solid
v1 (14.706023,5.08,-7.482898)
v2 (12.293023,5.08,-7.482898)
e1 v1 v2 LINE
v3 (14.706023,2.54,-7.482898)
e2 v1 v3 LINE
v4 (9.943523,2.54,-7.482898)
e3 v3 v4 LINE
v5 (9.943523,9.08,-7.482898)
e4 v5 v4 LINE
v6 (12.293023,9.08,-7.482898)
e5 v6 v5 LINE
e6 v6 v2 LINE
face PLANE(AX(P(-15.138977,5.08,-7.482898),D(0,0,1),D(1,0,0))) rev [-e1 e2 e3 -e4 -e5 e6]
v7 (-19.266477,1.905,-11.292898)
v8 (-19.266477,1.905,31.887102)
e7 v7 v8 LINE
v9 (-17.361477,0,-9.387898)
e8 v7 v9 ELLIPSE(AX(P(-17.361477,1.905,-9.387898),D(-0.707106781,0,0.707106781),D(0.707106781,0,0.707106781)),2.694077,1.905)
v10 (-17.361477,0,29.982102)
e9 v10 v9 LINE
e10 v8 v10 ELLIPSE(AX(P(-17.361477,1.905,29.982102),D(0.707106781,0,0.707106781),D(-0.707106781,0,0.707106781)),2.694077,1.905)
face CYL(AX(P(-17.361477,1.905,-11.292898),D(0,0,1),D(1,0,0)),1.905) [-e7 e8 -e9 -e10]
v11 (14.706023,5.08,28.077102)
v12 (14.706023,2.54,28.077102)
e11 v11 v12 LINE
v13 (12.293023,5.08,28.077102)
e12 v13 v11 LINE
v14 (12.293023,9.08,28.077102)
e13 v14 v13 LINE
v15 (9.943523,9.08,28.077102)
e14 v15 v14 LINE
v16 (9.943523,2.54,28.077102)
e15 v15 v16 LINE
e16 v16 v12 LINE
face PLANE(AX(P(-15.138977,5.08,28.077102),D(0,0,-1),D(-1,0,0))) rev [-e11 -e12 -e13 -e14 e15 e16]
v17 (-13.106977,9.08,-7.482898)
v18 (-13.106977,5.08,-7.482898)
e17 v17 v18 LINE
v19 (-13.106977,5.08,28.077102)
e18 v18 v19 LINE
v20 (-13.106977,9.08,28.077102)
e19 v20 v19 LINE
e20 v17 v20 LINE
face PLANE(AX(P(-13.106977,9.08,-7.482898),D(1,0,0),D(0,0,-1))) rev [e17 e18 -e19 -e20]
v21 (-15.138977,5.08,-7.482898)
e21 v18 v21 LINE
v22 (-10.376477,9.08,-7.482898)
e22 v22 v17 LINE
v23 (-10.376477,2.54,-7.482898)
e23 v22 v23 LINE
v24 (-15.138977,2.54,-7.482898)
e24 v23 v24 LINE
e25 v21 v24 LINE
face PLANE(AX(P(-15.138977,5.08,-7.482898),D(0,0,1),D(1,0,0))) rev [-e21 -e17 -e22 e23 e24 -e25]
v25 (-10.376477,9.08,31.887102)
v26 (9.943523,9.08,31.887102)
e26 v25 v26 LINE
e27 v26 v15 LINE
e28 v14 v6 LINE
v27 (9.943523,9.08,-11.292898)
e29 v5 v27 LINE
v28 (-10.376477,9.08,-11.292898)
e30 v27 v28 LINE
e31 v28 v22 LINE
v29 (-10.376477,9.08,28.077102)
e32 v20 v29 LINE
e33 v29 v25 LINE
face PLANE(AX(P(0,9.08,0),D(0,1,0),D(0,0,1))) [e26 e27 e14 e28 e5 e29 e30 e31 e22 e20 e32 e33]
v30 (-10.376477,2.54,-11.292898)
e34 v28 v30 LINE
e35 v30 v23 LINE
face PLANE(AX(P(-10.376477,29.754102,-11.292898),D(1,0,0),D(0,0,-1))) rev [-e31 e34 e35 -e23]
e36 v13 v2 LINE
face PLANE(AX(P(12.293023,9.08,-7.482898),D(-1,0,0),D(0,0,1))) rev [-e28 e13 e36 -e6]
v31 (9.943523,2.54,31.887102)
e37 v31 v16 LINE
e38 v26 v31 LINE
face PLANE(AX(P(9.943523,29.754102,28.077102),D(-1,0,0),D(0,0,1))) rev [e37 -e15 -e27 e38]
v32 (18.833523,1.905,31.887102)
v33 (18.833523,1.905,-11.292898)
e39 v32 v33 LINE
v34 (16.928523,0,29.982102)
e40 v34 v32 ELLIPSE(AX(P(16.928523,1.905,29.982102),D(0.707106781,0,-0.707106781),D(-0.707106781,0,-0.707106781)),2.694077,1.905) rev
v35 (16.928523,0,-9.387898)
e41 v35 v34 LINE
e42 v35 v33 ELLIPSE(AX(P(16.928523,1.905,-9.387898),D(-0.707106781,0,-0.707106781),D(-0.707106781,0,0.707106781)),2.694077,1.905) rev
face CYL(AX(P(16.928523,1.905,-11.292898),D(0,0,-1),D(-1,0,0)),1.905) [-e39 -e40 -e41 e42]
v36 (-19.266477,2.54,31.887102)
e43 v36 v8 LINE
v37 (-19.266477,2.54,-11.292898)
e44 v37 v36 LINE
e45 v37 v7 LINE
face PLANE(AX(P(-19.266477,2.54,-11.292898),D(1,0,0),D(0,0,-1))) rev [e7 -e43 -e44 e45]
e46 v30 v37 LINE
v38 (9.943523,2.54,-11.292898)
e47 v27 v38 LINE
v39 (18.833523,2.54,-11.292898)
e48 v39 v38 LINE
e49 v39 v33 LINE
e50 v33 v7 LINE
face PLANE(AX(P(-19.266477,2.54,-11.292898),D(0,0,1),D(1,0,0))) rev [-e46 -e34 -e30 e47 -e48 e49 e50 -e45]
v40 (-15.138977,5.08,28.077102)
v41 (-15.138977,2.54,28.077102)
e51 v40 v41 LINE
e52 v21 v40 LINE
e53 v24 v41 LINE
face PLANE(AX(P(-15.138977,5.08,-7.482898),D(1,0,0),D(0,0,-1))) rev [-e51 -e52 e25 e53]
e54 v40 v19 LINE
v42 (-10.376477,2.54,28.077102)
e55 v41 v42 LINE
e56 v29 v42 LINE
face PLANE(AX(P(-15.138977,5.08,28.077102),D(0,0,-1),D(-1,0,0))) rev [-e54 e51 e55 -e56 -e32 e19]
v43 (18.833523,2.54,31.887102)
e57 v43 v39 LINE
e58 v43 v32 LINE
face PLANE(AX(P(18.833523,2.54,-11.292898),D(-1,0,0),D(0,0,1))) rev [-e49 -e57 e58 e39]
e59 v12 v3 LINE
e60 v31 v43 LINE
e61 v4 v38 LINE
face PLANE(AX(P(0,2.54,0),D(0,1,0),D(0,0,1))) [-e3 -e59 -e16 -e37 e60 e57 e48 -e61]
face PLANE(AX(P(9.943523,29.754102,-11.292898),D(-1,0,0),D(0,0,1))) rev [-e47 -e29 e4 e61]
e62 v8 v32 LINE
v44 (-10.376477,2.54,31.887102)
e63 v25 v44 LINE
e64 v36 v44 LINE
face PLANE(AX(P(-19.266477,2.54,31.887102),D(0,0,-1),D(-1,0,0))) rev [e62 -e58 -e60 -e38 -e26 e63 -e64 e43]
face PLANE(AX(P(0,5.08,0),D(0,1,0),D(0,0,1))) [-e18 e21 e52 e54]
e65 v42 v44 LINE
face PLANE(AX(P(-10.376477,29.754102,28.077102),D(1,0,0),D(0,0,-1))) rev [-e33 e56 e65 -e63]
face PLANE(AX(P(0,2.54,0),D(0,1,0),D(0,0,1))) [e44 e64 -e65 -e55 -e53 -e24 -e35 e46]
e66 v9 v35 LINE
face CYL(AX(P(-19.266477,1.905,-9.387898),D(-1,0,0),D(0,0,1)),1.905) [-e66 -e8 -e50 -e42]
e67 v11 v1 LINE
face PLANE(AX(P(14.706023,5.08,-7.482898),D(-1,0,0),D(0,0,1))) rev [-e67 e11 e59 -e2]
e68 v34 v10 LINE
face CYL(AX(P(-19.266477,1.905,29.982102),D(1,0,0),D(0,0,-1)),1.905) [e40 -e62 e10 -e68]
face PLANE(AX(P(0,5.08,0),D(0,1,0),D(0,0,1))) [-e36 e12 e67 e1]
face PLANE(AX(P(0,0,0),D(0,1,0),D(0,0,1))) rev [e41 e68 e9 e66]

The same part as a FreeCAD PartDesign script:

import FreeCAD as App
import Part
import Sketcher
Q = App.Units.Quantity


def edges_at(feature, points):
    """Names of the edges that pass closest to the given points."""
    edges = feature.Shape.Edges
    near = lambda p: min(range(len(edges)), key=lambda i: edges[i].distToShape(Part.Vertex(*p))[0])
    return sorted({f"Edge{near(p) + 1}" for p in points})


def add_polygon(sketch, points):
    """Adds a closed chain of lines whose ends are joined by coincident constraints."""
    first, n = sketch.GeometryCount, len(points)
    for a, b in zip(points, points[1:] + points[:1]):
        sketch.addGeometry(Part.LineSegment(App.Vector(*a, 0), App.Vector(*b, 0)), False)
    for i in range(n):
        sketch.addConstraint(Sketcher.Constraint("Coincident", first + i, 2, first + (i + 1) % n, 1))

doc = App.newDocument("Part")
body = doc.addObject("PartDesign::Body", "Body")

# Sketch on XZ plane
sketch1 = doc.addObject("Sketcher::SketchObject", "Sketch")
body.addObject(sketch1)
sketch1.AttachmentSupport = (doc.XZ_Plane, [""])
sketch1.MapMode = "FlatFace"
add_polygon(sketch1, [(-19.266477, -11.292898), (-19.266477, 31.887102), (18.833523, 31.887102), (18.833523, -11.292898)])  # lines 0-3
sketch1.addConstraint([
    Sketcher.Constraint("Vertical", 0),
    Sketcher.Constraint("Horizontal", 1),
    Sketcher.Constraint("Vertical", 2),
    Sketcher.Constraint("Horizontal", 3),
    Sketcher.Constraint("DistanceX", 1, 1, 1, 2, Q("1.5 in")),
    Sketcher.Constraint("DistanceY", 0, 1, 0, 2, Q("1.7 in")),
    Sketcher.Constraint("DistanceX", 0, 2, -1, 1, 19.266477),
    Sketcher.Constraint("DistanceY", -1, 1, 0, 2, 31.887102),
])
pad1 = doc.addObject("PartDesign::Pad", "Pad")
body.addObject(pad1)
pad1.Profile = sketch1
pad1.Length = Q("0.1 in")
pad1.Reversed = True

# Sketch on XZ plane
sketch2 = doc.addObject("Sketcher::SketchObject", "Sketch001")
body.addObject(sketch2)
sketch2.AttachmentSupport = (doc.XZ_Plane, [""])
sketch2.MapMode = "FlatFace"
sketch2.AttachmentOffset = App.Placement(App.Vector(0, 0, -0.1 * 25.4), App.Rotation())
add_polygon(sketch2, [(-15.138977, -7.482898), (-15.138977, 28.077102), (14.706023, 28.077102), (14.706023, -7.482898)])  # lines 0-3
sketch2.addConstraint([
    Sketcher.Constraint("Vertical", 0),
    Sketcher.Constraint("Horizontal", 1),
    Sketcher.Constraint("Vertical", 2),
    Sketcher.Constraint("Horizontal", 3),
    Sketcher.Constraint("DistanceY", 0, 1, 0, 2, Q("1.4 in")),
    Sketcher.Constraint("DistanceX", 1, 1, 1, 2, Q("1.175 in")),
    Sketcher.Constraint("DistanceX", 0, 2, -1, 1, 15.138977),
    Sketcher.Constraint("DistanceY", -1, 1, 0, 2, 28.077102),
])
pad2 = doc.addObject("PartDesign::Pad", "Pad001")
body.addObject(pad2)
pad2.Profile = sketch2
pad2.Length = Q("0.1 in")
pad2.Reversed = True

# Sketch on XZ plane
sketch3 = doc.addObject("Sketcher::SketchObject", "Sketch002")
body.addObject(sketch3)
sketch3.AttachmentSupport = (doc.XZ_Plane, [""])
sketch3.MapMode = "FlatFace"
sketch3.AttachmentOffset = App.Placement(App.Vector(0, 0, -0.2 * 25.4), App.Rotation())
add_polygon(sketch3, [(-13.106977, -7.482898), (-13.106977, 28.077102), (12.293023, 28.077102), (12.293023, -7.482898)])  # lines 0-3
sketch3.addConstraint([
    Sketcher.Constraint("Vertical", 0),
    Sketcher.Constraint("Horizontal", 1),
    Sketcher.Constraint("Vertical", 2),
    Sketcher.Constraint("Horizontal", 3),
    Sketcher.Constraint("DistanceX", 1, 1, 1, 2, Q("1 in")),
    Sketcher.Constraint("DistanceY", 0, 1, 0, 2, Q("1.4 in")),
    Sketcher.Constraint("DistanceX", 0, 2, -1, 1, 13.106977),
    Sketcher.Constraint("DistanceY", -1, 1, 0, 2, 28.077102),
])
pad3 = doc.addObject("PartDesign::Pad", "Pad002")
body.addObject(pad3)
pad3.Profile = sketch3
pad3.Length = 4
pad3.Reversed = True

# Sketch on XZ plane
sketch4 = doc.addObject("Sketcher::SketchObject", "Sketch003")
body.addObject(sketch4)
sketch4.AttachmentSupport = (doc.XZ_Plane, [""])
sketch4.MapMode = "FlatFace"
sketch4.AttachmentOffset = App.Placement(App.Vector(0, 0, -0.1 * 25.4), App.Rotation())
add_polygon(sketch4, [(-10.376477, 28.077102), (-10.376477, 31.887102), (9.943523, 31.887102), (9.943523, 28.077102)])  # lines 0-3
add_polygon(sketch4, [(-10.376477, -11.292898), (-10.376477, -7.482898), (9.943523, -7.482898), (9.943523, -11.292898)])  # lines 4-7
sketch4.addConstraint([
    Sketcher.Constraint("Vertical", 0),
    Sketcher.Constraint("Horizontal", 1),
    Sketcher.Constraint("Vertical", 2),
    Sketcher.Constraint("Horizontal", 3),
    Sketcher.Constraint("Vertical", 4),
    Sketcher.Constraint("Horizontal", 5),
    Sketcher.Constraint("Vertical", 6),
    Sketcher.Constraint("Horizontal", 7),
    Sketcher.Constraint("Vertical", 3, 2, 4, 2),
    Sketcher.Constraint("Vertical", 2, 2, 5, 2),
    Sketcher.Constraint("Equal", 2, 4),
    Sketcher.Constraint("DistanceX", 1, 1, 1, 2, Q("0.8 in")),
    Sketcher.Constraint("DistanceY", 0, 1, 0, 2, Q("0.15 in")),
    Sketcher.Constraint("DistanceY", 4, 2, 3, 2, Q("1.4 in")),
    Sketcher.Constraint("DistanceX", 0, 2, -1, 1, 10.376477),
    Sketcher.Constraint("DistanceY", -1, 1, 0, 2, 31.887102),
])
pad4 = doc.addObject("PartDesign::Pad", "Pad003")
body.addObject(pad4)
pad4.Profile = sketch4
pad4.Length = 6.54
pad4.Reversed = True
doc.recompute()

fillet = doc.addObject("PartDesign::Fillet", "Fillet")
body.addObject(fillet)
fillet.Base = (pad4, edges_at(pad4, [
    (-0.216, 0, -11.293),
    (18.834, 0, 10.297),
    (-0.216, 0, 31.887),
    (-19.266, 0, 10.297),
]))
fillet.Radius = Q("0.075 in")

doc.recompute()
